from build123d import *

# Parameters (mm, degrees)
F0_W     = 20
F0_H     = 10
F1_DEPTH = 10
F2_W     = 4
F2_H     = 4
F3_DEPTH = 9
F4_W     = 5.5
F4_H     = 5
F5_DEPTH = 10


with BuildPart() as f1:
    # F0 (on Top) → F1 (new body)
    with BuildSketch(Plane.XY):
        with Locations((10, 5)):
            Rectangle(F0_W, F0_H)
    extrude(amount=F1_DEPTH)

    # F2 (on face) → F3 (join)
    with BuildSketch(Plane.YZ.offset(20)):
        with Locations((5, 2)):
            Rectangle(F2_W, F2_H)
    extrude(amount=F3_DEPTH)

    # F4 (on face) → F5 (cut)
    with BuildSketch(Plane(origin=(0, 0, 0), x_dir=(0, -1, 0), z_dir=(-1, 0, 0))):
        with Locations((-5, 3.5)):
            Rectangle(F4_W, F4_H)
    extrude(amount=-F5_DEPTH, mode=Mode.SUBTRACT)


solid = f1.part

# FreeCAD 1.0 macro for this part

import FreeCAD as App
import Part
import Sketcher

V = App.Vector
Q = App.Units.Quantity


def add_polygon(sketch, points):
    """Adds a closed chain of lines whose ends are joined by coincident constraints."""
    first, n = sketch.GeometryCount, len(points)
    for a, b in zip(points, points[1:] + points[:1]):
        sketch.addGeometry(Part.LineSegment(App.Vector(*a, 0), App.Vector(*b, 0)), False)
    for i in range(n):
        sketch.addConstraint(Sketcher.Constraint("Coincident", first + i, 2, first + (i + 1) % n, 1))

doc = App.newDocument("Part")
body = doc.addObject("PartDesign::Body", "Body")

# Sketch on XY plane
sketch1 = body.newObject("Sketcher::SketchObject", "Sketch")
sketch1.AttachmentSupport = (doc.getObject("XY_Plane"), [""])
sketch1.MapMode = "FlatFace"
add_polygon(sketch1, [(0, 10), (0, 0), (20, 0), (20, 10)])  # lines 0-3
sketch1.addConstraint([
    Sketcher.Constraint("Vertical", 0),
    Sketcher.Constraint("Horizontal", 1),
    Sketcher.Constraint("Vertical", 2),
    Sketcher.Constraint("Horizontal", 3),
    Sketcher.Constraint("Coincident", 0, 2, -1, 1),
    Sketcher.Constraint("DistanceX", 1, 1, 1, 2, Q("20 mm")),
    Sketcher.Constraint("DistanceY", 0, 2, 0, 1, Q("10 mm")),
])
pad1 = body.newObject("PartDesign::Pad", "Pad")
pad1.Profile = sketch1
pad1.Length = 10

# Sketch on YZ plane
sketch2 = body.newObject("Sketcher::SketchObject", "Sketch001")
sketch2.AttachmentSupport = (doc.getObject("YZ_Plane"), [""])
sketch2.MapMode = "FlatFace"
sketch2.AttachmentOffset = App.Placement(V(0, 0, 20), App.Rotation())
add_polygon(sketch2, [(3, 4), (3, 0), (7, 0), (7, 4)])  # lines 0-3
sketch2.addConstraint([
    Sketcher.Constraint("Vertical", 0),
    Sketcher.Constraint("Horizontal", 1),
    Sketcher.Constraint("Vertical", 2),
    Sketcher.Constraint("Horizontal", 3),
    Sketcher.Constraint("PointOnObject", 0, 2, -1),
    Sketcher.Constraint("Equal", 3, 0),
    Sketcher.Constraint("DistanceX", 1, 1, 1, 2, Q("4 mm")),
    Sketcher.Constraint("DistanceX", -1, 1, 0, 2, Q("3 mm")),
])
pad2 = body.newObject("PartDesign::Pad", "Pad001")
pad2.Profile = sketch2
pad2.Length = 9

# Sketch on YZ plane
sketch3 = body.newObject("Sketcher::SketchObject", "Sketch002")
sketch3.AttachmentSupport = (doc.getObject("YZ_Plane"), [""])
sketch3.MapMode = "FlatFace"
add_polygon(sketch3, [(8, 6), (8, 1), (2, 1), (2, 6)])  # lines 0-3
sketch3.addConstraint([
    Sketcher.Constraint("Vertical", 0),
    Sketcher.Constraint("Horizontal", 1),
    Sketcher.Constraint("Vertical", 2),
    Sketcher.Constraint("Horizontal", 3),
    Sketcher.Constraint("DistanceY", 0, 2, 0, 1, Q("5 mm")),
    Sketcher.Constraint("DistanceX", 1, 2, 1, 1, Q("5.5 mm")),
    Sketcher.Constraint("DistanceY", -1, 1, 0, 2, Q("1 mm")),
    Sketcher.Constraint("DistanceX", -1, 1, 0, 2, Q("7.75 mm")),
])
pocket1 = body.newObject("PartDesign::Pocket", "Pocket")
pocket1.Profile = sketch3
pocket1.Length = 10
pocket1.Reversed = True

doc.recompute()
